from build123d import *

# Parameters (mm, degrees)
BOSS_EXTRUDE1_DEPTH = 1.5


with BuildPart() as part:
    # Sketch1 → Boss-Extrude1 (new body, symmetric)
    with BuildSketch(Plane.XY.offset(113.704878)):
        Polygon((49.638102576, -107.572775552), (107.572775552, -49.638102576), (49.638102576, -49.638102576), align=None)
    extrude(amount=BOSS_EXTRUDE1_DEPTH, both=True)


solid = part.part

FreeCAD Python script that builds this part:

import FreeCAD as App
import Part
import Sketcher

V = App.Vector

doc = App.newDocument("Part")
body = doc.addObject("PartDesign::Body", "Body")

sketch1 = doc.addObject("Sketcher::SketchObject", "Sketch")
body.addObject(sketch1)
sketch1.AttachmentSupport = (doc.XY_Plane, [""])
sketch1.MapMode = "FlatFace"
sketch1.AttachmentOffset = App.Placement(V(0, 0, 113.704878), App.Rotation())
sketch1.addGeometry(Part.LineSegment(V(50, -108, 0), V(108, -50, 0)), False)
sketch1.addGeometry(Part.LineSegment(V(108, -50, 0), V(50, -50, 0)), False)
sketch1.addGeometry(Part.LineSegment(V(50, -50, 0), V(50, -108, 0)), False)
sketch1.addConstraint(Sketcher.Constraint("Coincident", 0, 2, 1, 1))
sketch1.addConstraint(Sketcher.Constraint("Coincident", 1, 2, 2, 1))
sketch1.addConstraint(Sketcher.Constraint("Coincident", 2, 2, 0, 1))
sketch1.addConstraint(Sketcher.Constraint("Horizontal", 1))
sketch1.addConstraint(Sketcher.Constraint("Vertical", 2))
sketch1.addConstraint(Sketcher.Constraint("Equal", 1, 2))
sketch1.addConstraint(Sketcher.Constraint("Distance", 0, 81.932))
sketch1.addConstraint(Sketcher.Constraint("DistanceX", -1, 1, 0, 2, 107.572776))
sketch1.addConstraint(Sketcher.Constraint("DistanceY", 0, 2, -1, 1, 49.638103))
pad1 = doc.addObject("PartDesign::Pad", "Pad")
body.addObject(pad1)
pad1.Profile = sketch1
pad1.Length = 3
pad1.Midplane = True

doc.recompute()
